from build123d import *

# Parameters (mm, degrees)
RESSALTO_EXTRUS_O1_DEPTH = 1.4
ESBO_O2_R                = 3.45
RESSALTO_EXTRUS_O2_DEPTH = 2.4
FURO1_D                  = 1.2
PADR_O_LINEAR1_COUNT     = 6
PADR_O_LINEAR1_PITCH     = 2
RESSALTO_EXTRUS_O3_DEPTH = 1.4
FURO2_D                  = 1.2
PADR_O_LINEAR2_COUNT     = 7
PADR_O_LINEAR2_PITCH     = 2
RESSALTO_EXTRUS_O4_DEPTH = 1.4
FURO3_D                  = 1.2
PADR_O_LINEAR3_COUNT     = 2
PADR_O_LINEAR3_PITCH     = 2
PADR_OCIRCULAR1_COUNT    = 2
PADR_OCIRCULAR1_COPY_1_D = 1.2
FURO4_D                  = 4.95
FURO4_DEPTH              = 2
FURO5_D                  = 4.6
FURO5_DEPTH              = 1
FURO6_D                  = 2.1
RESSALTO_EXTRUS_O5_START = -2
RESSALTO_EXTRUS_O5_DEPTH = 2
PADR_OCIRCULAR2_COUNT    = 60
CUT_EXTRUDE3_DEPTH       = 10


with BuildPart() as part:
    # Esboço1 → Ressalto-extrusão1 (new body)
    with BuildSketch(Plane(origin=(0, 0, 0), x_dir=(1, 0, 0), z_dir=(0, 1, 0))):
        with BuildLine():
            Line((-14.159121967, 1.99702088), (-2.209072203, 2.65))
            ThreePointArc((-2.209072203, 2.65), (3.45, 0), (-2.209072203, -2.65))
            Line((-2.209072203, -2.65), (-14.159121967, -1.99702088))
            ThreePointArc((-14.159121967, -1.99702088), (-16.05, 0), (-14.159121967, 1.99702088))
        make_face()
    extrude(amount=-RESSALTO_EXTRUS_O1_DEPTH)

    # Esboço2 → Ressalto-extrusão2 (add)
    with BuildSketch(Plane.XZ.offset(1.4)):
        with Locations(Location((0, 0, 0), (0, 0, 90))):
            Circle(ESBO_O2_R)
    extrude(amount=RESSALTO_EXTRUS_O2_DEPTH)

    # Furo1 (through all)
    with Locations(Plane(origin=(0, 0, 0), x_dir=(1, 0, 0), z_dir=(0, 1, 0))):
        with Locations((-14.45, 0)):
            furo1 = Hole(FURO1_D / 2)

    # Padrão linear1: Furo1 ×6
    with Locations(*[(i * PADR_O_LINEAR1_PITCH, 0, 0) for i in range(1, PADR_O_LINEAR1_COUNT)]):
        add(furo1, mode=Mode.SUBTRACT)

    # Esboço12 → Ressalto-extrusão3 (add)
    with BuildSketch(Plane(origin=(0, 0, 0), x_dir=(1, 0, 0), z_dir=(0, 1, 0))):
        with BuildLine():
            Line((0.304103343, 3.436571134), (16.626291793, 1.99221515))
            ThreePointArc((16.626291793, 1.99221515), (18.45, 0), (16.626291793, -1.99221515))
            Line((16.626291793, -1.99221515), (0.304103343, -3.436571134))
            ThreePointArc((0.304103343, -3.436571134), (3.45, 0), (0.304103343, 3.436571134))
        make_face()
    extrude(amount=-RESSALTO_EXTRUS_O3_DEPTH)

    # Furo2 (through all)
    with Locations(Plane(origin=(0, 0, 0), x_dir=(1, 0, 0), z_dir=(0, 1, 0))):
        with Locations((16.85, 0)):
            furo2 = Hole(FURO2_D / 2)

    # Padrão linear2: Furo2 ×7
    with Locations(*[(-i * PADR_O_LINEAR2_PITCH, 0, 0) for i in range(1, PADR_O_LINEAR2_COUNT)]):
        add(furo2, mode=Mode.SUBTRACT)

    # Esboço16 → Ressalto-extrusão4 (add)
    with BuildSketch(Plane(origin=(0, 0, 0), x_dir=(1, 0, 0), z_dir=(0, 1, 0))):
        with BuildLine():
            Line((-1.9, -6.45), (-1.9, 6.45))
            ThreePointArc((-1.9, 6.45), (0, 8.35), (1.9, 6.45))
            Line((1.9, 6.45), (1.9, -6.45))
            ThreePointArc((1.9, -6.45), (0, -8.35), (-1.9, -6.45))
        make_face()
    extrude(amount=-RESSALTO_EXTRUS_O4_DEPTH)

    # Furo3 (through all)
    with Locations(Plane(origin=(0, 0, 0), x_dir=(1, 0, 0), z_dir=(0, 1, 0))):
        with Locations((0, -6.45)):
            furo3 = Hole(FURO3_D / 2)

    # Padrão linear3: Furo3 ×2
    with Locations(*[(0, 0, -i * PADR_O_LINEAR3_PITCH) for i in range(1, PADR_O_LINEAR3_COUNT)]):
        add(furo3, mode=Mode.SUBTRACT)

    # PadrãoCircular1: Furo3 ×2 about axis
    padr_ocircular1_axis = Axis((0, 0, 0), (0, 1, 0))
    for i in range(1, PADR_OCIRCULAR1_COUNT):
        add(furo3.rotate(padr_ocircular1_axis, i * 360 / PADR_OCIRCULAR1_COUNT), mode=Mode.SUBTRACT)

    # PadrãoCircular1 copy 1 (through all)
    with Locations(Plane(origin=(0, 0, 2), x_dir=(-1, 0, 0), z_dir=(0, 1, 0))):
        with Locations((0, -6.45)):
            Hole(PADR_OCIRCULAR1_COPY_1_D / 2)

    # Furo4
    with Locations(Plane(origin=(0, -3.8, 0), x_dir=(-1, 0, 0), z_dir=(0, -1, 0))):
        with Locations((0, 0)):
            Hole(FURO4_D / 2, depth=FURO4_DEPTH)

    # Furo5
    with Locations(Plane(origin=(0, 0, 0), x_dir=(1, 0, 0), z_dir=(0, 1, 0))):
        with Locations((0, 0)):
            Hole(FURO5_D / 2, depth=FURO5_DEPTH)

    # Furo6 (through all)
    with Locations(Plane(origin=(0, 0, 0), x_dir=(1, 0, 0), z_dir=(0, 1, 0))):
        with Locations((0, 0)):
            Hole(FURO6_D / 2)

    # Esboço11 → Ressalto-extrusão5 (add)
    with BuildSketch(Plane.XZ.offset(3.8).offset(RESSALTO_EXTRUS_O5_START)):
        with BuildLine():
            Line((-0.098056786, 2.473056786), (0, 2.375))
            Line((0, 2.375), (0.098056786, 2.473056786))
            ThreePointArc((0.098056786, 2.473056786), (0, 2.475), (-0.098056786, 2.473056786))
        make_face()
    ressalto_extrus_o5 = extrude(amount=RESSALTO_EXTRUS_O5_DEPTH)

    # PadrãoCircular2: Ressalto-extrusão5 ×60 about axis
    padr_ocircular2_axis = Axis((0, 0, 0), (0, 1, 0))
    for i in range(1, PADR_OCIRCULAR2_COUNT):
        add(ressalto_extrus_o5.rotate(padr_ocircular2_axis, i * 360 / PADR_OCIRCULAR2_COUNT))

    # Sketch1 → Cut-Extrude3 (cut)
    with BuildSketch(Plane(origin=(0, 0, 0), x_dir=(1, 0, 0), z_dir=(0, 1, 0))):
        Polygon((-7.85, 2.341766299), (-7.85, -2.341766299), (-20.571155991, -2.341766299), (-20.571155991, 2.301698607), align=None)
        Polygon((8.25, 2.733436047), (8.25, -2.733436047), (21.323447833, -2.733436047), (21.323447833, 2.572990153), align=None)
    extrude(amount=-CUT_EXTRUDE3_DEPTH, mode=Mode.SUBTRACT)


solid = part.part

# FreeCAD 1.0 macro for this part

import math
import FreeCAD as App
import Part
import Sketcher

doc = App.newDocument("Part")
params = doc.addObject("Spreadsheet::Sheet", "Params")
for row, (alias, value) in enumerate([
    ("sketch1_radius", "2 mm"),
    ("sketch1_radius2", "3.45 mm"),
    ("pad1_length", "1.4 mm"),
    ("sketch2_diameter", "6.9 mm"),
    ("pad2_length", "2.4 mm"),
    ("sketch3_diameter", "1.2 mm"),
    ("hole_diameter", "1.2 mm"),
    ("linearpattern_pitch", "2 mm"),
    ("sketch4_radius", "2 mm"),
    ("sketch4_radius2", "3.45 mm"),
    ("pad3_length", "1.4 mm"),
    ("sketch5_diameter", "1.2 mm"),
    ("hole2_diameter", "1.2 mm"),
    ("linearpattern2_pitch", "2 mm"),
    ("sketch6_radius", "1.9 mm"),
    ("sketch6_height", "12.9 mm"),
    ("pad4_length", "1.4 mm"),
    ("sketch7_diameter", "1.2 mm"),
    ("hole3_diameter", "1.2 mm"),
    ("linearpattern3_pitch", "2 mm"),
    ("sketch8_diameter", "1.2 mm"),
    ("hole4_diameter", "1.2 mm"),
    ("sketch9_diameter", "4.95 mm"),
    ("hole5_diameter", "4.95 mm"),
    ("hole5_depth", "2 mm"),
    ("sketch10_diameter", "4.6 mm"),
    ("hole6_diameter", "4.6 mm"),
    ("hole6_depth", "1 mm"),
    ("sketch11_diameter", "2.1 mm"),
    ("hole7_diameter", "2.1 mm"),
    ("pad5_length", "2 mm"),
    ("pocket1_length", "10 mm"),
], start=1):
    params.set(f"A{row}", alias)
    params.set(f"B{row}", "=" + value)
    params.setAlias(f"B{row}", alias)

body = doc.addObject("PartDesign::Body", "Body")

# Sketch on XZ plane
sketch1 = body.newObject("Sketcher::SketchObject", "Sketch")
sketch1.AttachmentSupport = (doc.getObject("XZ_Plane"), [""])
sketch1.MapMode = "FlatFace"
sketch1.addGeometry(Part.LineSegment(App.Vector(-2.2, -2.6, 0), App.Vector(-14.2, -2, 0)), False)
sketch1.addGeometry(Part.ArcOfCircle(Part.Circle(App.Vector(-14.1, 0, 0), App.Vector(0, 0, 1), 2), math.radians(93), math.radians(267)), False)
sketch1.addGeometry(Part.LineSegment(App.Vector(-14.2, 2, 0), App.Vector(-2.2, 2.6, 0)), False)
sketch1.addGeometry(Part.ArcOfCircle(Part.Circle(App.Vector(0, 0, 0), App.Vector(0, 0, 1), 3.5), math.radians(-130), math.radians(130)), False)
sketch1.addConstraint(Sketcher.Constraint("Tangent", 0, 2, 1, 2))
sketch1.addConstraint(Sketcher.Constraint("Tangent", 1, 1, 2, 1))
sketch1.addConstraint(Sketcher.Constraint("Coincident", 2, 2, 3, 2))
sketch1.addConstraint(Sketcher.Constraint("Coincident", 3, 1, 0, 1))
sketch1.addConstraint(Sketcher.Constraint("Coincident", 3, 3, -1, 1))
sketch1.addConstraint(Sketcher.Constraint("Symmetric", 0, 2, 1, 1, -1))
sketch1.addConstraint(Sketcher.Constraint("Radius", 1, 2.0))
sketch1.addConstraint(Sketcher.Constraint("Radius", 3, 3.45))
sketch1.addConstraint(Sketcher.Constraint("DistanceY", 3, 1, 2, 2, 5.3))
sketch1.addConstraint(Sketcher.Constraint("DistanceX", 1, 3, -1, 1, 14.05))
sketch1.setExpression("Constraints[6]", "Params.sketch1_radius")
sketch1.setExpression("Constraints[7]", "Params.sketch1_radius2")
pad1 = body.newObject("PartDesign::Pad", "Pad")
pad1.Profile = sketch1
pad1.setExpression("Length", "Params.pad1_length")

# Sketch on XZ plane
sketch2 = body.newObject("Sketcher::SketchObject", "Sketch001")
sketch2.AttachmentSupport = (doc.getObject("XZ_Plane"), [""])
sketch2.MapMode = "FlatFace"
sketch2.AttachmentOffset = App.Placement(App.Vector(0, 0, 1.4), App.Rotation())
sketch2.addGeometry(Part.Circle(App.Vector(0, 0, 0), App.Vector(0, 0, 1), 3.5), False)
sketch2.addConstraint(Sketcher.Constraint("Coincident", 0, 3, -1, 1))
sketch2.addConstraint(Sketcher.Constraint("Diameter", 0, 6.9))
sketch2.setExpression("Constraints[1]", "Params.sketch2_diameter")
pad2 = body.newObject("PartDesign::Pad", "Pad001")
pad2.Profile = sketch2
pad2.setExpression("Length", "Params.pad2_length")

# Sketch on XZ plane
sketch3 = body.newObject("Sketcher::SketchObject", "Sketch002")
sketch3.AttachmentSupport = (doc.getObject("XZ_Plane"), [""])
sketch3.MapMode = "FlatFace"
sketch3.addGeometry(Part.Circle(App.Vector(-14.4, 0, 0), App.Vector(0, 0, 1), 0.6), False)
sketch3.addConstraint(Sketcher.Constraint("PointOnObject", 0, 3, -1))
sketch3.addConstraint(Sketcher.Constraint("Diameter", 0, 1.2))
sketch3.addConstraint(Sketcher.Constraint("DistanceX", 0, 3, -1, 1, 14.45))
sketch3.setExpression("Constraints[1]", "Params.sketch3_diameter")
doc.recompute()
hole = body.newObject("PartDesign::Hole", "Hole")
hole.Profile = sketch3
hole.ThreadType = "None"
hole.setExpression("Diameter", "Params.hole_diameter")
hole.DepthType = "ThroughAll"
hole.Reversed = True
doc.recompute()

linearpattern = body.newObject("PartDesign::LinearPattern", "LinearPattern")
linearpattern.Originals = [hole]
linearpattern.Direction = (doc.getObject("X_Axis"), [""])
linearpattern.Mode = "offset"
linearpattern.setExpression("Offset", "Params.linearpattern_pitch")
linearpattern.Occurrences = 6
body.Tip = linearpattern

# Sketch on XZ plane
sketch4 = body.newObject("Sketcher::SketchObject", "Sketch003")
sketch4.AttachmentSupport = (doc.getObject("XZ_Plane"), [""])
sketch4.MapMode = "FlatFace"
sketch4.addGeometry(Part.LineSegment(App.Vector(16.6, -2, 0), App.Vector(0.3, -3.4, 0)), False)
sketch4.addGeometry(Part.ArcOfCircle(Part.Circle(App.Vector(0, 0, 0), App.Vector(0, 0, 1), 3.5), math.radians(-85), math.radians(85)), False)
sketch4.addGeometry(Part.LineSegment(App.Vector(0.3, 3.4, 0), App.Vector(16.6, 2, 0)), False)
sketch4.addGeometry(Part.ArcOfCircle(Part.Circle(App.Vector(16.4, 0, 0), App.Vector(0, 0, 1), 2), math.radians(-85), math.radians(85)), False)
sketch4.addConstraint(Sketcher.Constraint("Tangent", 0, 2, 1, 1))
sketch4.addConstraint(Sketcher.Constraint("Tangent", 1, 2, 2, 1))
sketch4.addConstraint(Sketcher.Constraint("Tangent", 2, 2, 3, 2))
sketch4.addConstraint(Sketcher.Constraint("Tangent", 3, 1, 0, 1))
sketch4.addConstraint(Sketcher.Constraint("Coincident", 1, 3, -1, 1))
sketch4.addConstraint(Sketcher.Constraint("PointOnObject", 3, 3, -1))
sketch4.addConstraint(Sketcher.Constraint("Radius", 3, 2.0))
sketch4.addConstraint(Sketcher.Constraint("Radius", 1, 3.45))
sketch4.addConstraint(Sketcher.Constraint("DistanceX", -1, 1, 3, 3, 16.45))
sketch4.setExpression("Constraints[6]", "Params.sketch4_radius")
sketch4.setExpression("Constraints[7]", "Params.sketch4_radius2")
pad3 = body.newObject("PartDesign::Pad", "Pad002")
pad3.Profile = sketch4
pad3.setExpression("Length", "Params.pad3_length")

# Sketch on XZ plane
sketch5 = body.newObject("Sketcher::SketchObject", "Sketch004")
sketch5.AttachmentSupport = (doc.getObject("XZ_Plane"), [""])
sketch5.MapMode = "FlatFace"
sketch5.addGeometry(Part.Circle(App.Vector(16.9, 0, 0), App.Vector(0, 0, 1), 0.6), False)
sketch5.addConstraint(Sketcher.Constraint("PointOnObject", 0, 3, -1))
sketch5.addConstraint(Sketcher.Constraint("Diameter", 0, 1.2))
sketch5.addConstraint(Sketcher.Constraint("DistanceX", -1, 1, 0, 3, 16.85))
sketch5.setExpression("Constraints[1]", "Params.sketch5_diameter")
doc.recompute()
hole2 = body.newObject("PartDesign::Hole", "Hole001")
hole2.Profile = sketch5
hole2.ThreadType = "None"
hole2.setExpression("Diameter", "Params.hole2_diameter")
hole2.DepthType = "ThroughAll"
hole2.Reversed = True
doc.recompute()

linearpattern2 = body.newObject("PartDesign::LinearPattern", "LinearPattern001")
linearpattern2.Originals = [hole2]
linearpattern2.Direction = (doc.getObject("X_Axis"), [""])
linearpattern2.Mode = "offset"
linearpattern2.setExpression("Offset", "Params.linearpattern2_pitch")
linearpattern2.Occurrences = 7
linearpattern2.Reversed = True
body.Tip = linearpattern2

# Sketch on XZ plane
sketch6 = body.newObject("Sketcher::SketchObject", "Sketch005")
sketch6.AttachmentSupport = (doc.getObject("XZ_Plane"), [""])
sketch6.MapMode = "FlatFace"
sketch6.addGeometry(Part.LineSegment(App.Vector(-1.9, -6.5, 0), App.Vector(-1.9, 6.5, 0)), False)
sketch6.addGeometry(Part.ArcOfCircle(Part.Circle(App.Vector(0, 6.5, 0), App.Vector(0, 0, 1), 1.9), math.radians(0), math.radians(180)), False)
sketch6.addGeometry(Part.LineSegment(App.Vector(1.9, 6.5, 0), App.Vector(1.9, -6.5, 0)), False)
sketch6.addGeometry(Part.ArcOfCircle(Part.Circle(App.Vector(0, -6.5, 0), App.Vector(0, 0, 1), 1.9), math.radians(180), math.radians(360)), False)
sketch6.addConstraint(Sketcher.Constraint("Tangent", 0, 2, 1, 2))
sketch6.addConstraint(Sketcher.Constraint("Tangent", 1, 1, 2, 1))
sketch6.addConstraint(Sketcher.Constraint("Tangent", 2, 2, 3, 2))
sketch6.addConstraint(Sketcher.Constraint("Tangent", 3, 1, 0, 1))
sketch6.addConstraint(Sketcher.Constraint("Vertical", 0))
sketch6.addConstraint(Sketcher.Constraint("Vertical", 2))
sketch6.addConstraint(Sketcher.Constraint("Symmetric", 1, 3, 3, 3, -1, 1))
sketch6.addConstraint(Sketcher.Constraint("Radius", 1, 1.9))
sketch6.addConstraint(Sketcher.Constraint("DistanceY", 0, 1, 0, 2, 12.9))
sketch6.setExpression("Constraints[7]", "Params.sketch6_radius")
sketch6.setExpression("Constraints[8]", "Params.sketch6_height")
pad4 = body.newObject("PartDesign::Pad", "Pad003")
pad4.Profile = sketch6
pad4.setExpression("Length", "Params.pad4_length")

# Sketch on XZ plane
sketch7 = body.newObject("Sketcher::SketchObject", "Sketch006")
sketch7.AttachmentSupport = (doc.getObject("XZ_Plane"), [""])
sketch7.MapMode = "FlatFace"
sketch7.addGeometry(Part.Circle(App.Vector(0, 6.5, 0), App.Vector(0, 0, 1), 0.6), False)
sketch7.addConstraint(Sketcher.Constraint("PointOnObject", 0, 3, -2))
sketch7.addConstraint(Sketcher.Constraint("Diameter", 0, 1.2))
sketch7.addConstraint(Sketcher.Constraint("DistanceY", -1, 1, 0, 3, 6.45))
sketch7.setExpression("Constraints[1]", "Params.sketch7_diameter")
doc.recompute()
hole3 = body.newObject("PartDesign::Hole", "Hole002")
hole3.Profile = sketch7
hole3.ThreadType = "None"
hole3.setExpression("Diameter", "Params.hole3_diameter")
hole3.DepthType = "ThroughAll"
hole3.Reversed = True
doc.recompute()

linearpattern3 = body.newObject("PartDesign::LinearPattern", "LinearPattern002")
linearpattern3.Originals = [hole3]
linearpattern3.Direction = (doc.getObject("Z_Axis"), [""])
linearpattern3.Mode = "offset"
linearpattern3.setExpression("Offset", "Params.linearpattern3_pitch")
linearpattern3.Occurrences = 2
linearpattern3.Reversed = True
body.Tip = linearpattern3
doc.recompute()

polarpattern = body.newObject("PartDesign::PolarPattern", "PolarPattern")
polarpattern.Originals = [hole3]
polarpattern.Axis = (doc.getObject("Y_Axis"), [""])
polarpattern.Angle = 360
polarpattern.Occurrences = 2
body.Tip = polarpattern

# Sketch on XZ plane
sketch8 = body.newObject("Sketcher::SketchObject", "Sketch007")
sketch8.AttachmentSupport = (doc.getObject("XZ_Plane"), [""])
sketch8.MapMode = "FlatFace"
sketch8.addGeometry(Part.Circle(App.Vector(0, -4.5, 0), App.Vector(0, 0, 1), 0.6), False)
sketch8.addConstraint(Sketcher.Constraint("PointOnObject", 0, 3, -2))
sketch8.addConstraint(Sketcher.Constraint("Diameter", 0, 1.2))
sketch8.addConstraint(Sketcher.Constraint("DistanceY", 0, 3, -1, 1, 4.45))
sketch8.setExpression("Constraints[1]", "Params.sketch8_diameter")
doc.recompute()
hole4 = body.newObject("PartDesign::Hole", "Hole003")
hole4.Profile = sketch8
hole4.ThreadType = "None"
hole4.setExpression("Diameter", "Params.hole4_diameter")
hole4.DepthType = "ThroughAll"
hole4.Reversed = True

# Sketch on XZ plane
sketch9 = body.newObject("Sketcher::SketchObject", "Sketch008")
sketch9.AttachmentSupport = (doc.getObject("XZ_Plane"), [""])
sketch9.MapMode = "FlatFace"
sketch9.AttachmentOffset = App.Placement(App.Vector(0, 0, 3.8), App.Rotation())
sketch9.addGeometry(Part.Circle(App.Vector(0, 0, 0), App.Vector(0, 0, 1), 2.5), False)
sketch9.addConstraint(Sketcher.Constraint("Coincident", 0, 3, -1, 1))
sketch9.addConstraint(Sketcher.Constraint("Diameter", 0, 4.95))
sketch9.setExpression("Constraints[1]", "Params.sketch9_diameter")
doc.recompute()
hole5 = body.newObject("PartDesign::Hole", "Hole004")
hole5.Profile = sketch9
hole5.ThreadType = "None"
hole5.setExpression("Diameter", "Params.hole5_diameter")
hole5.DepthType = "Dimension"
hole5.setExpression("Depth", "Params.hole5_depth")
hole5.DrillPoint = "Flat"

# Sketch on XZ plane
sketch10 = body.newObject("Sketcher::SketchObject", "Sketch009")
sketch10.AttachmentSupport = (doc.getObject("XZ_Plane"), [""])
sketch10.MapMode = "FlatFace"
sketch10.addGeometry(Part.Circle(App.Vector(0, 0, 0), App.Vector(0, 0, 1), 2.3), False)
sketch10.addConstraint(Sketcher.Constraint("Coincident", 0, 3, -1, 1))
sketch10.addConstraint(Sketcher.Constraint("Diameter", 0, 4.6))
sketch10.setExpression("Constraints[1]", "Params.sketch10_diameter")
doc.recompute()
hole6 = body.newObject("PartDesign::Hole", "Hole005")
hole6.Profile = sketch10
hole6.ThreadType = "None"
hole6.setExpression("Diameter", "Params.hole6_diameter")
hole6.DepthType = "Dimension"
hole6.setExpression("Depth", "Params.hole6_depth")
hole6.DrillPoint = "Flat"
hole6.Reversed = True

# Sketch on XZ plane
sketch11 = body.newObject("Sketcher::SketchObject", "Sketch010")
sketch11.AttachmentSupport = (doc.getObject("XZ_Plane"), [""])
sketch11.MapMode = "FlatFace"
sketch11.addGeometry(Part.Circle(App.Vector(0, 0, 0), App.Vector(0, 0, 1), 1.1), False)
sketch11.addConstraint(Sketcher.Constraint("Coincident", 0, 3, -1, 1))
sketch11.addConstraint(Sketcher.Constraint("Diameter", 0, 2.1))
sketch11.setExpression("Constraints[1]", "Params.sketch11_diameter")
doc.recompute()
hole7 = body.newObject("PartDesign::Hole", "Hole006")
hole7.Profile = sketch11
hole7.ThreadType = "None"
hole7.setExpression("Diameter", "Params.hole7_diameter")
hole7.DepthType = "ThroughAll"
hole7.Reversed = True

# Sketch on XZ plane
sketch12 = body.newObject("Sketcher::SketchObject", "Sketch011")
sketch12.AttachmentSupport = (doc.getObject("XZ_Plane"), [""])
sketch12.MapMode = "FlatFace"
sketch12.AttachmentOffset = App.Placement(App.Vector(0, 0, 1.8), App.Rotation())
sketch12.addGeometry(Part.LineSegment(App.Vector(-0.1, 2.47, 0), App.Vector(0, 2.38, 0)), False)
sketch12.addGeometry(Part.LineSegment(App.Vector(0, 2.38, 0), App.Vector(0.1, 2.47, 0)), False)
sketch12.addGeometry(Part.ArcOfCircle(Part.Circle(App.Vector(0, 0, 0), App.Vector(0, 0, 1), 2.48), math.radians(87.73), math.radians(92.27)), False)
sketch12.addConstraint(Sketcher.Constraint("Coincident", 0, 2, 1, 1))
sketch12.addConstraint(Sketcher.Constraint("Coincident", 1, 2, 2, 1))
sketch12.addConstraint(Sketcher.Constraint("Coincident", 2, 2, 0, 1))
sketch12.addConstraint(Sketcher.Constraint("Coincident", 2, 3, -1, 1))
sketch12.addConstraint(Sketcher.Constraint("PointOnObject", 0, 2, -2))
sketch12.addConstraint(Sketcher.Constraint("Perpendicular", 0, 1))
sketch12.addConstraint(Sketcher.Constraint("Horizontal", 1, 2, 2, 2))
sketch12.addConstraint(Sketcher.Constraint("Radius", 2, 2.475))
sketch12.addConstraint(Sketcher.Constraint("DistanceY", -1, 1, 0, 2, 2.375))
pad5 = body.newObject("PartDesign::Pad", "Pad004")
pad5.Profile = sketch12
pad5.setExpression("Length", "Params.pad5_length")
doc.recompute()

polarpattern2 = body.newObject("PartDesign::PolarPattern", "PolarPattern001")
polarpattern2.Originals = [pad5]
polarpattern2.Axis = (doc.getObject("Y_Axis"), [""])
polarpattern2.Angle = 360
polarpattern2.Occurrences = 60
body.Tip = polarpattern2

# Sketch on XZ plane
sketch13 = body.newObject("Sketcher::SketchObject", "Sketch012")
sketch13.AttachmentSupport = (doc.getObject("XZ_Plane"), [""])
sketch13.MapMode = "FlatFace"
sketch13.addGeometry(Part.LineSegment(App.Vector(-7.8, 2.3, 0), App.Vector(-7.8, -2.3, 0)), False)
sketch13.addGeometry(Part.LineSegment(App.Vector(-7.8, -2.3, 0), App.Vector(-20.6, -2.3, 0)), False)
sketch13.addGeometry(Part.LineSegment(App.Vector(-20.6, -2.3, 0), App.Vector(-20.6, 2.3, 0)), False)
sketch13.addGeometry(Part.LineSegment(App.Vector(-20.6, 2.3, 0), App.Vector(-7.8, 2.3, 0)), False)
sketch13.addGeometry(Part.LineSegment(App.Vector(8.2, -2.7, 0), App.Vector(8.2, 2.7, 0)), False)
sketch13.addGeometry(Part.LineSegment(App.Vector(8.2, 2.7, 0), App.Vector(21.3, 2.7, 0)), False)
sketch13.addGeometry(Part.LineSegment(App.Vector(21.3, 2.7, 0), App.Vector(21.3, -2.6, 0)), False)
sketch13.addGeometry(Part.LineSegment(App.Vector(21.3, -2.6, 0), App.Vector(8.2, -2.7, 0)), False)
sketch13.addConstraint(Sketcher.Constraint("Coincident", 0, 2, 1, 1))
sketch13.addConstraint(Sketcher.Constraint("Coincident", 1, 2, 2, 1))
sketch13.addConstraint(Sketcher.Constraint("Coincident", 2, 2, 3, 1))
sketch13.addConstraint(Sketcher.Constraint("Coincident", 3, 2, 0, 1))
sketch13.addConstraint(Sketcher.Constraint("Coincident", 4, 2, 5, 1))
sketch13.addConstraint(Sketcher.Constraint("Coincident", 5, 2, 6, 1))
sketch13.addConstraint(Sketcher.Constraint("Coincident", 6, 2, 7, 1))
sketch13.addConstraint(Sketcher.Constraint("Coincident", 7, 2, 4, 1))
sketch13.addConstraint(Sketcher.Constraint("Vertical", 0))
sketch13.addConstraint(Sketcher.Constraint("Vertical", 2))
sketch13.addConstraint(Sketcher.Constraint("Horizontal", 3))
sketch13.addConstraint(Sketcher.Constraint("Vertical", 4))
sketch13.addConstraint(Sketcher.Constraint("Horizontal", 5))
sketch13.addConstraint(Sketcher.Constraint("Vertical", 6))
sketch13.addConstraint(Sketcher.Constraint("DistanceX", 3, 2, 4, 2, 16.1))
sketch13.addConstraint(Sketcher.Constraint("DistanceX", 0, 2, -1, 1, 7.85))
sketch13.addConstraint(Sketcher.Constraint("DistanceY", 1, 2, -1, 1, 2.301699))
sketch13.addConstraint(Sketcher.Constraint("Distance", 1, 12.721219))
sketch13.addConstraint(Sketcher.Constraint("DistanceX", 5, 1, 5, 2, 13.073448))
sketch13.addConstraint(Sketcher.Constraint("DistanceY", 0, 2, 0, 1, 4.683533))
sketch13.addConstraint(Sketcher.Constraint("DistanceY", 2, 1, 2, 2, 4.643465))
sketch13.addConstraint(Sketcher.Constraint("DistanceY", 4, 1, 4, 2, 5.466872))
sketch13.addConstraint(Sketcher.Constraint("DistanceY", 6, 2, 6, 1, 5.306426))
sketch13.addConstraint(Sketcher.Constraint("DistanceY", 6, 2, -1, 1, 2.57299))
pocket1 = body.newObject("PartDesign::Pocket", "Pocket")
pocket1.Profile = sketch13
pocket1.setExpression("Length", "Params.pocket1_length")
pocket1.Reversed = True

doc.recompute()
